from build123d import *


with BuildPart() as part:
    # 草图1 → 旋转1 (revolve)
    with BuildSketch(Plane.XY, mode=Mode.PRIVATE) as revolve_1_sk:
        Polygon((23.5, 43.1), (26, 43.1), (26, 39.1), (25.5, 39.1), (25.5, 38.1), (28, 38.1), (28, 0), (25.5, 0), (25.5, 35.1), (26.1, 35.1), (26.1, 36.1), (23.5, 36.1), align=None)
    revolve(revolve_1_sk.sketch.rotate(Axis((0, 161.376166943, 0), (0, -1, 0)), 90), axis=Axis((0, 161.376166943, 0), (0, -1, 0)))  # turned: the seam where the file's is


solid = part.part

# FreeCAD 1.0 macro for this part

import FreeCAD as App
import Part
import Sketcher

V = App.Vector
Q = App.Units.Quantity

doc = App.newDocument("Part")
body = doc.addObject("PartDesign::Body", "Body")

sketch1 = body.newObject("Sketcher::SketchObject", "Sketch")
sketch1.AttachmentSupport = (doc.getObject("XY_Plane"), [""])
sketch1.MapMode = "FlatFace"
sketch1.addGeometry(Part.LineSegment(V(26, 43.1, 0), V(23.5, 43.1, 0)), False)
sketch1.addGeometry(Part.LineSegment(V(23.5, 43.1, 0), V(23.5, 36.1, 0)), False)
sketch1.addGeometry(Part.LineSegment(V(23.5, 36.1, 0), V(26.1, 36.1, 0)), False)
sketch1.addGeometry(Part.LineSegment(V(26.1, 36.1, 0), V(26.1, 35.1, 0)), False)
sketch1.addGeometry(Part.LineSegment(V(26.1, 35.1, 0), V(25.5, 35.1, 0)), False)
sketch1.addGeometry(Part.LineSegment(V(25.5, 35.1, 0), V(25.5, 0, 0)), False)
sketch1.addGeometry(Part.LineSegment(V(25.5, 0, 0), V(28, 0, 0)), False)
sketch1.addGeometry(Part.LineSegment(V(28, 0, 0), V(28, 38.1, 0)), False)
sketch1.addGeometry(Part.LineSegment(V(28, 38.1, 0), V(25.5, 38.1, 0)), False)
sketch1.addGeometry(Part.LineSegment(V(25.5, 38.1, 0), V(25.5, 39.1, 0)), False)
sketch1.addGeometry(Part.LineSegment(V(25.5, 39.1, 0), V(26, 39.1, 0)), False)
sketch1.addGeometry(Part.LineSegment(V(26, 39.1, 0), V(26, 43.1, 0)), False)
sketch1.addConstraint(Sketcher.Constraint("Coincident", 0, 2, 1, 1))
sketch1.addConstraint(Sketcher.Constraint("Coincident", 1, 2, 2, 1))
sketch1.addConstraint(Sketcher.Constraint("Coincident", 2, 2, 3, 1))
sketch1.addConstraint(Sketcher.Constraint("Coincident", 3, 2, 4, 1))
sketch1.addConstraint(Sketcher.Constraint("Coincident", 4, 2, 5, 1))
sketch1.addConstraint(Sketcher.Constraint("Coincident", 5, 2, 6, 1))
sketch1.addConstraint(Sketcher.Constraint("Coincident", 6, 2, 7, 1))
sketch1.addConstraint(Sketcher.Constraint("Coincident", 7, 2, 8, 1))
sketch1.addConstraint(Sketcher.Constraint("Coincident", 8, 2, 9, 1))
sketch1.addConstraint(Sketcher.Constraint("Coincident", 9, 2, 10, 1))
sketch1.addConstraint(Sketcher.Constraint("Coincident", 10, 2, 11, 1))
sketch1.addConstraint(Sketcher.Constraint("Coincident", 11, 2, 0, 1))
sketch1.addConstraint(Sketcher.Constraint("Horizontal", 0))
sketch1.addConstraint(Sketcher.Constraint("Vertical", 1))
sketch1.addConstraint(Sketcher.Constraint("Horizontal", 2))
sketch1.addConstraint(Sketcher.Constraint("Vertical", 3))
sketch1.addConstraint(Sketcher.Constraint("Horizontal", 4))
sketch1.addConstraint(Sketcher.Constraint("Vertical", 5))
sketch1.addConstraint(Sketcher.Constraint("Horizontal", 6))
sketch1.addConstraint(Sketcher.Constraint("Vertical", 7))
sketch1.addConstraint(Sketcher.Constraint("Horizontal", 8))
sketch1.addConstraint(Sketcher.Constraint("Vertical", 9))
sketch1.addConstraint(Sketcher.Constraint("Horizontal", 10))
sketch1.addConstraint(Sketcher.Constraint("Vertical", 11))
sketch1.addConstraint(Sketcher.Constraint("PointOnObject", 5, 2, -1))
sketch1.addConstraint(Sketcher.Constraint("Vertical", 5, 2, 8, 2))
sketch1.addConstraint(Sketcher.Constraint("Equal", 0, 6))
sketch1.addConstraint(Sketcher.Constraint("Equal", 3, 9))
sketch1.addConstraint(Sketcher.Constraint("DistanceY", 1, 2, 1, 1, Q("7 mm")))
sketch1.addConstraint(Sketcher.Constraint("DistanceY", 3, 2, 3, 1, Q("1 mm")))
sketch1.addConstraint(Sketcher.Constraint("DistanceY", 11, 1, 11, 2, Q("4 mm")))
sketch1.addConstraint(Sketcher.Constraint("DistanceX", 0, 2, 0, 1, Q("2.5 mm")))
sketch1.addConstraint(Sketcher.Constraint("DistanceX", 2, 1, 2, 2, Q("2.6 mm")))
sketch1.addConstraint(Sketcher.Constraint("DistanceX", 4, 2, 4, 1, Q("0.6 mm")))
sketch1.addConstraint(Sketcher.Constraint("DistanceY", 5, 2, 5, 1, Q("35.1 mm")))
sketch1.addConstraint(Sketcher.Constraint("DistanceX", -1, 1, 6, 2, Q("28 mm")))
revolution = body.newObject("PartDesign::Revolution", "Revolution")
revolution.Profile = sketch1
revolution.ReferenceAxis = (sketch1, ["V_Axis"])
revolution.Angle = 360

doc.recompute()
